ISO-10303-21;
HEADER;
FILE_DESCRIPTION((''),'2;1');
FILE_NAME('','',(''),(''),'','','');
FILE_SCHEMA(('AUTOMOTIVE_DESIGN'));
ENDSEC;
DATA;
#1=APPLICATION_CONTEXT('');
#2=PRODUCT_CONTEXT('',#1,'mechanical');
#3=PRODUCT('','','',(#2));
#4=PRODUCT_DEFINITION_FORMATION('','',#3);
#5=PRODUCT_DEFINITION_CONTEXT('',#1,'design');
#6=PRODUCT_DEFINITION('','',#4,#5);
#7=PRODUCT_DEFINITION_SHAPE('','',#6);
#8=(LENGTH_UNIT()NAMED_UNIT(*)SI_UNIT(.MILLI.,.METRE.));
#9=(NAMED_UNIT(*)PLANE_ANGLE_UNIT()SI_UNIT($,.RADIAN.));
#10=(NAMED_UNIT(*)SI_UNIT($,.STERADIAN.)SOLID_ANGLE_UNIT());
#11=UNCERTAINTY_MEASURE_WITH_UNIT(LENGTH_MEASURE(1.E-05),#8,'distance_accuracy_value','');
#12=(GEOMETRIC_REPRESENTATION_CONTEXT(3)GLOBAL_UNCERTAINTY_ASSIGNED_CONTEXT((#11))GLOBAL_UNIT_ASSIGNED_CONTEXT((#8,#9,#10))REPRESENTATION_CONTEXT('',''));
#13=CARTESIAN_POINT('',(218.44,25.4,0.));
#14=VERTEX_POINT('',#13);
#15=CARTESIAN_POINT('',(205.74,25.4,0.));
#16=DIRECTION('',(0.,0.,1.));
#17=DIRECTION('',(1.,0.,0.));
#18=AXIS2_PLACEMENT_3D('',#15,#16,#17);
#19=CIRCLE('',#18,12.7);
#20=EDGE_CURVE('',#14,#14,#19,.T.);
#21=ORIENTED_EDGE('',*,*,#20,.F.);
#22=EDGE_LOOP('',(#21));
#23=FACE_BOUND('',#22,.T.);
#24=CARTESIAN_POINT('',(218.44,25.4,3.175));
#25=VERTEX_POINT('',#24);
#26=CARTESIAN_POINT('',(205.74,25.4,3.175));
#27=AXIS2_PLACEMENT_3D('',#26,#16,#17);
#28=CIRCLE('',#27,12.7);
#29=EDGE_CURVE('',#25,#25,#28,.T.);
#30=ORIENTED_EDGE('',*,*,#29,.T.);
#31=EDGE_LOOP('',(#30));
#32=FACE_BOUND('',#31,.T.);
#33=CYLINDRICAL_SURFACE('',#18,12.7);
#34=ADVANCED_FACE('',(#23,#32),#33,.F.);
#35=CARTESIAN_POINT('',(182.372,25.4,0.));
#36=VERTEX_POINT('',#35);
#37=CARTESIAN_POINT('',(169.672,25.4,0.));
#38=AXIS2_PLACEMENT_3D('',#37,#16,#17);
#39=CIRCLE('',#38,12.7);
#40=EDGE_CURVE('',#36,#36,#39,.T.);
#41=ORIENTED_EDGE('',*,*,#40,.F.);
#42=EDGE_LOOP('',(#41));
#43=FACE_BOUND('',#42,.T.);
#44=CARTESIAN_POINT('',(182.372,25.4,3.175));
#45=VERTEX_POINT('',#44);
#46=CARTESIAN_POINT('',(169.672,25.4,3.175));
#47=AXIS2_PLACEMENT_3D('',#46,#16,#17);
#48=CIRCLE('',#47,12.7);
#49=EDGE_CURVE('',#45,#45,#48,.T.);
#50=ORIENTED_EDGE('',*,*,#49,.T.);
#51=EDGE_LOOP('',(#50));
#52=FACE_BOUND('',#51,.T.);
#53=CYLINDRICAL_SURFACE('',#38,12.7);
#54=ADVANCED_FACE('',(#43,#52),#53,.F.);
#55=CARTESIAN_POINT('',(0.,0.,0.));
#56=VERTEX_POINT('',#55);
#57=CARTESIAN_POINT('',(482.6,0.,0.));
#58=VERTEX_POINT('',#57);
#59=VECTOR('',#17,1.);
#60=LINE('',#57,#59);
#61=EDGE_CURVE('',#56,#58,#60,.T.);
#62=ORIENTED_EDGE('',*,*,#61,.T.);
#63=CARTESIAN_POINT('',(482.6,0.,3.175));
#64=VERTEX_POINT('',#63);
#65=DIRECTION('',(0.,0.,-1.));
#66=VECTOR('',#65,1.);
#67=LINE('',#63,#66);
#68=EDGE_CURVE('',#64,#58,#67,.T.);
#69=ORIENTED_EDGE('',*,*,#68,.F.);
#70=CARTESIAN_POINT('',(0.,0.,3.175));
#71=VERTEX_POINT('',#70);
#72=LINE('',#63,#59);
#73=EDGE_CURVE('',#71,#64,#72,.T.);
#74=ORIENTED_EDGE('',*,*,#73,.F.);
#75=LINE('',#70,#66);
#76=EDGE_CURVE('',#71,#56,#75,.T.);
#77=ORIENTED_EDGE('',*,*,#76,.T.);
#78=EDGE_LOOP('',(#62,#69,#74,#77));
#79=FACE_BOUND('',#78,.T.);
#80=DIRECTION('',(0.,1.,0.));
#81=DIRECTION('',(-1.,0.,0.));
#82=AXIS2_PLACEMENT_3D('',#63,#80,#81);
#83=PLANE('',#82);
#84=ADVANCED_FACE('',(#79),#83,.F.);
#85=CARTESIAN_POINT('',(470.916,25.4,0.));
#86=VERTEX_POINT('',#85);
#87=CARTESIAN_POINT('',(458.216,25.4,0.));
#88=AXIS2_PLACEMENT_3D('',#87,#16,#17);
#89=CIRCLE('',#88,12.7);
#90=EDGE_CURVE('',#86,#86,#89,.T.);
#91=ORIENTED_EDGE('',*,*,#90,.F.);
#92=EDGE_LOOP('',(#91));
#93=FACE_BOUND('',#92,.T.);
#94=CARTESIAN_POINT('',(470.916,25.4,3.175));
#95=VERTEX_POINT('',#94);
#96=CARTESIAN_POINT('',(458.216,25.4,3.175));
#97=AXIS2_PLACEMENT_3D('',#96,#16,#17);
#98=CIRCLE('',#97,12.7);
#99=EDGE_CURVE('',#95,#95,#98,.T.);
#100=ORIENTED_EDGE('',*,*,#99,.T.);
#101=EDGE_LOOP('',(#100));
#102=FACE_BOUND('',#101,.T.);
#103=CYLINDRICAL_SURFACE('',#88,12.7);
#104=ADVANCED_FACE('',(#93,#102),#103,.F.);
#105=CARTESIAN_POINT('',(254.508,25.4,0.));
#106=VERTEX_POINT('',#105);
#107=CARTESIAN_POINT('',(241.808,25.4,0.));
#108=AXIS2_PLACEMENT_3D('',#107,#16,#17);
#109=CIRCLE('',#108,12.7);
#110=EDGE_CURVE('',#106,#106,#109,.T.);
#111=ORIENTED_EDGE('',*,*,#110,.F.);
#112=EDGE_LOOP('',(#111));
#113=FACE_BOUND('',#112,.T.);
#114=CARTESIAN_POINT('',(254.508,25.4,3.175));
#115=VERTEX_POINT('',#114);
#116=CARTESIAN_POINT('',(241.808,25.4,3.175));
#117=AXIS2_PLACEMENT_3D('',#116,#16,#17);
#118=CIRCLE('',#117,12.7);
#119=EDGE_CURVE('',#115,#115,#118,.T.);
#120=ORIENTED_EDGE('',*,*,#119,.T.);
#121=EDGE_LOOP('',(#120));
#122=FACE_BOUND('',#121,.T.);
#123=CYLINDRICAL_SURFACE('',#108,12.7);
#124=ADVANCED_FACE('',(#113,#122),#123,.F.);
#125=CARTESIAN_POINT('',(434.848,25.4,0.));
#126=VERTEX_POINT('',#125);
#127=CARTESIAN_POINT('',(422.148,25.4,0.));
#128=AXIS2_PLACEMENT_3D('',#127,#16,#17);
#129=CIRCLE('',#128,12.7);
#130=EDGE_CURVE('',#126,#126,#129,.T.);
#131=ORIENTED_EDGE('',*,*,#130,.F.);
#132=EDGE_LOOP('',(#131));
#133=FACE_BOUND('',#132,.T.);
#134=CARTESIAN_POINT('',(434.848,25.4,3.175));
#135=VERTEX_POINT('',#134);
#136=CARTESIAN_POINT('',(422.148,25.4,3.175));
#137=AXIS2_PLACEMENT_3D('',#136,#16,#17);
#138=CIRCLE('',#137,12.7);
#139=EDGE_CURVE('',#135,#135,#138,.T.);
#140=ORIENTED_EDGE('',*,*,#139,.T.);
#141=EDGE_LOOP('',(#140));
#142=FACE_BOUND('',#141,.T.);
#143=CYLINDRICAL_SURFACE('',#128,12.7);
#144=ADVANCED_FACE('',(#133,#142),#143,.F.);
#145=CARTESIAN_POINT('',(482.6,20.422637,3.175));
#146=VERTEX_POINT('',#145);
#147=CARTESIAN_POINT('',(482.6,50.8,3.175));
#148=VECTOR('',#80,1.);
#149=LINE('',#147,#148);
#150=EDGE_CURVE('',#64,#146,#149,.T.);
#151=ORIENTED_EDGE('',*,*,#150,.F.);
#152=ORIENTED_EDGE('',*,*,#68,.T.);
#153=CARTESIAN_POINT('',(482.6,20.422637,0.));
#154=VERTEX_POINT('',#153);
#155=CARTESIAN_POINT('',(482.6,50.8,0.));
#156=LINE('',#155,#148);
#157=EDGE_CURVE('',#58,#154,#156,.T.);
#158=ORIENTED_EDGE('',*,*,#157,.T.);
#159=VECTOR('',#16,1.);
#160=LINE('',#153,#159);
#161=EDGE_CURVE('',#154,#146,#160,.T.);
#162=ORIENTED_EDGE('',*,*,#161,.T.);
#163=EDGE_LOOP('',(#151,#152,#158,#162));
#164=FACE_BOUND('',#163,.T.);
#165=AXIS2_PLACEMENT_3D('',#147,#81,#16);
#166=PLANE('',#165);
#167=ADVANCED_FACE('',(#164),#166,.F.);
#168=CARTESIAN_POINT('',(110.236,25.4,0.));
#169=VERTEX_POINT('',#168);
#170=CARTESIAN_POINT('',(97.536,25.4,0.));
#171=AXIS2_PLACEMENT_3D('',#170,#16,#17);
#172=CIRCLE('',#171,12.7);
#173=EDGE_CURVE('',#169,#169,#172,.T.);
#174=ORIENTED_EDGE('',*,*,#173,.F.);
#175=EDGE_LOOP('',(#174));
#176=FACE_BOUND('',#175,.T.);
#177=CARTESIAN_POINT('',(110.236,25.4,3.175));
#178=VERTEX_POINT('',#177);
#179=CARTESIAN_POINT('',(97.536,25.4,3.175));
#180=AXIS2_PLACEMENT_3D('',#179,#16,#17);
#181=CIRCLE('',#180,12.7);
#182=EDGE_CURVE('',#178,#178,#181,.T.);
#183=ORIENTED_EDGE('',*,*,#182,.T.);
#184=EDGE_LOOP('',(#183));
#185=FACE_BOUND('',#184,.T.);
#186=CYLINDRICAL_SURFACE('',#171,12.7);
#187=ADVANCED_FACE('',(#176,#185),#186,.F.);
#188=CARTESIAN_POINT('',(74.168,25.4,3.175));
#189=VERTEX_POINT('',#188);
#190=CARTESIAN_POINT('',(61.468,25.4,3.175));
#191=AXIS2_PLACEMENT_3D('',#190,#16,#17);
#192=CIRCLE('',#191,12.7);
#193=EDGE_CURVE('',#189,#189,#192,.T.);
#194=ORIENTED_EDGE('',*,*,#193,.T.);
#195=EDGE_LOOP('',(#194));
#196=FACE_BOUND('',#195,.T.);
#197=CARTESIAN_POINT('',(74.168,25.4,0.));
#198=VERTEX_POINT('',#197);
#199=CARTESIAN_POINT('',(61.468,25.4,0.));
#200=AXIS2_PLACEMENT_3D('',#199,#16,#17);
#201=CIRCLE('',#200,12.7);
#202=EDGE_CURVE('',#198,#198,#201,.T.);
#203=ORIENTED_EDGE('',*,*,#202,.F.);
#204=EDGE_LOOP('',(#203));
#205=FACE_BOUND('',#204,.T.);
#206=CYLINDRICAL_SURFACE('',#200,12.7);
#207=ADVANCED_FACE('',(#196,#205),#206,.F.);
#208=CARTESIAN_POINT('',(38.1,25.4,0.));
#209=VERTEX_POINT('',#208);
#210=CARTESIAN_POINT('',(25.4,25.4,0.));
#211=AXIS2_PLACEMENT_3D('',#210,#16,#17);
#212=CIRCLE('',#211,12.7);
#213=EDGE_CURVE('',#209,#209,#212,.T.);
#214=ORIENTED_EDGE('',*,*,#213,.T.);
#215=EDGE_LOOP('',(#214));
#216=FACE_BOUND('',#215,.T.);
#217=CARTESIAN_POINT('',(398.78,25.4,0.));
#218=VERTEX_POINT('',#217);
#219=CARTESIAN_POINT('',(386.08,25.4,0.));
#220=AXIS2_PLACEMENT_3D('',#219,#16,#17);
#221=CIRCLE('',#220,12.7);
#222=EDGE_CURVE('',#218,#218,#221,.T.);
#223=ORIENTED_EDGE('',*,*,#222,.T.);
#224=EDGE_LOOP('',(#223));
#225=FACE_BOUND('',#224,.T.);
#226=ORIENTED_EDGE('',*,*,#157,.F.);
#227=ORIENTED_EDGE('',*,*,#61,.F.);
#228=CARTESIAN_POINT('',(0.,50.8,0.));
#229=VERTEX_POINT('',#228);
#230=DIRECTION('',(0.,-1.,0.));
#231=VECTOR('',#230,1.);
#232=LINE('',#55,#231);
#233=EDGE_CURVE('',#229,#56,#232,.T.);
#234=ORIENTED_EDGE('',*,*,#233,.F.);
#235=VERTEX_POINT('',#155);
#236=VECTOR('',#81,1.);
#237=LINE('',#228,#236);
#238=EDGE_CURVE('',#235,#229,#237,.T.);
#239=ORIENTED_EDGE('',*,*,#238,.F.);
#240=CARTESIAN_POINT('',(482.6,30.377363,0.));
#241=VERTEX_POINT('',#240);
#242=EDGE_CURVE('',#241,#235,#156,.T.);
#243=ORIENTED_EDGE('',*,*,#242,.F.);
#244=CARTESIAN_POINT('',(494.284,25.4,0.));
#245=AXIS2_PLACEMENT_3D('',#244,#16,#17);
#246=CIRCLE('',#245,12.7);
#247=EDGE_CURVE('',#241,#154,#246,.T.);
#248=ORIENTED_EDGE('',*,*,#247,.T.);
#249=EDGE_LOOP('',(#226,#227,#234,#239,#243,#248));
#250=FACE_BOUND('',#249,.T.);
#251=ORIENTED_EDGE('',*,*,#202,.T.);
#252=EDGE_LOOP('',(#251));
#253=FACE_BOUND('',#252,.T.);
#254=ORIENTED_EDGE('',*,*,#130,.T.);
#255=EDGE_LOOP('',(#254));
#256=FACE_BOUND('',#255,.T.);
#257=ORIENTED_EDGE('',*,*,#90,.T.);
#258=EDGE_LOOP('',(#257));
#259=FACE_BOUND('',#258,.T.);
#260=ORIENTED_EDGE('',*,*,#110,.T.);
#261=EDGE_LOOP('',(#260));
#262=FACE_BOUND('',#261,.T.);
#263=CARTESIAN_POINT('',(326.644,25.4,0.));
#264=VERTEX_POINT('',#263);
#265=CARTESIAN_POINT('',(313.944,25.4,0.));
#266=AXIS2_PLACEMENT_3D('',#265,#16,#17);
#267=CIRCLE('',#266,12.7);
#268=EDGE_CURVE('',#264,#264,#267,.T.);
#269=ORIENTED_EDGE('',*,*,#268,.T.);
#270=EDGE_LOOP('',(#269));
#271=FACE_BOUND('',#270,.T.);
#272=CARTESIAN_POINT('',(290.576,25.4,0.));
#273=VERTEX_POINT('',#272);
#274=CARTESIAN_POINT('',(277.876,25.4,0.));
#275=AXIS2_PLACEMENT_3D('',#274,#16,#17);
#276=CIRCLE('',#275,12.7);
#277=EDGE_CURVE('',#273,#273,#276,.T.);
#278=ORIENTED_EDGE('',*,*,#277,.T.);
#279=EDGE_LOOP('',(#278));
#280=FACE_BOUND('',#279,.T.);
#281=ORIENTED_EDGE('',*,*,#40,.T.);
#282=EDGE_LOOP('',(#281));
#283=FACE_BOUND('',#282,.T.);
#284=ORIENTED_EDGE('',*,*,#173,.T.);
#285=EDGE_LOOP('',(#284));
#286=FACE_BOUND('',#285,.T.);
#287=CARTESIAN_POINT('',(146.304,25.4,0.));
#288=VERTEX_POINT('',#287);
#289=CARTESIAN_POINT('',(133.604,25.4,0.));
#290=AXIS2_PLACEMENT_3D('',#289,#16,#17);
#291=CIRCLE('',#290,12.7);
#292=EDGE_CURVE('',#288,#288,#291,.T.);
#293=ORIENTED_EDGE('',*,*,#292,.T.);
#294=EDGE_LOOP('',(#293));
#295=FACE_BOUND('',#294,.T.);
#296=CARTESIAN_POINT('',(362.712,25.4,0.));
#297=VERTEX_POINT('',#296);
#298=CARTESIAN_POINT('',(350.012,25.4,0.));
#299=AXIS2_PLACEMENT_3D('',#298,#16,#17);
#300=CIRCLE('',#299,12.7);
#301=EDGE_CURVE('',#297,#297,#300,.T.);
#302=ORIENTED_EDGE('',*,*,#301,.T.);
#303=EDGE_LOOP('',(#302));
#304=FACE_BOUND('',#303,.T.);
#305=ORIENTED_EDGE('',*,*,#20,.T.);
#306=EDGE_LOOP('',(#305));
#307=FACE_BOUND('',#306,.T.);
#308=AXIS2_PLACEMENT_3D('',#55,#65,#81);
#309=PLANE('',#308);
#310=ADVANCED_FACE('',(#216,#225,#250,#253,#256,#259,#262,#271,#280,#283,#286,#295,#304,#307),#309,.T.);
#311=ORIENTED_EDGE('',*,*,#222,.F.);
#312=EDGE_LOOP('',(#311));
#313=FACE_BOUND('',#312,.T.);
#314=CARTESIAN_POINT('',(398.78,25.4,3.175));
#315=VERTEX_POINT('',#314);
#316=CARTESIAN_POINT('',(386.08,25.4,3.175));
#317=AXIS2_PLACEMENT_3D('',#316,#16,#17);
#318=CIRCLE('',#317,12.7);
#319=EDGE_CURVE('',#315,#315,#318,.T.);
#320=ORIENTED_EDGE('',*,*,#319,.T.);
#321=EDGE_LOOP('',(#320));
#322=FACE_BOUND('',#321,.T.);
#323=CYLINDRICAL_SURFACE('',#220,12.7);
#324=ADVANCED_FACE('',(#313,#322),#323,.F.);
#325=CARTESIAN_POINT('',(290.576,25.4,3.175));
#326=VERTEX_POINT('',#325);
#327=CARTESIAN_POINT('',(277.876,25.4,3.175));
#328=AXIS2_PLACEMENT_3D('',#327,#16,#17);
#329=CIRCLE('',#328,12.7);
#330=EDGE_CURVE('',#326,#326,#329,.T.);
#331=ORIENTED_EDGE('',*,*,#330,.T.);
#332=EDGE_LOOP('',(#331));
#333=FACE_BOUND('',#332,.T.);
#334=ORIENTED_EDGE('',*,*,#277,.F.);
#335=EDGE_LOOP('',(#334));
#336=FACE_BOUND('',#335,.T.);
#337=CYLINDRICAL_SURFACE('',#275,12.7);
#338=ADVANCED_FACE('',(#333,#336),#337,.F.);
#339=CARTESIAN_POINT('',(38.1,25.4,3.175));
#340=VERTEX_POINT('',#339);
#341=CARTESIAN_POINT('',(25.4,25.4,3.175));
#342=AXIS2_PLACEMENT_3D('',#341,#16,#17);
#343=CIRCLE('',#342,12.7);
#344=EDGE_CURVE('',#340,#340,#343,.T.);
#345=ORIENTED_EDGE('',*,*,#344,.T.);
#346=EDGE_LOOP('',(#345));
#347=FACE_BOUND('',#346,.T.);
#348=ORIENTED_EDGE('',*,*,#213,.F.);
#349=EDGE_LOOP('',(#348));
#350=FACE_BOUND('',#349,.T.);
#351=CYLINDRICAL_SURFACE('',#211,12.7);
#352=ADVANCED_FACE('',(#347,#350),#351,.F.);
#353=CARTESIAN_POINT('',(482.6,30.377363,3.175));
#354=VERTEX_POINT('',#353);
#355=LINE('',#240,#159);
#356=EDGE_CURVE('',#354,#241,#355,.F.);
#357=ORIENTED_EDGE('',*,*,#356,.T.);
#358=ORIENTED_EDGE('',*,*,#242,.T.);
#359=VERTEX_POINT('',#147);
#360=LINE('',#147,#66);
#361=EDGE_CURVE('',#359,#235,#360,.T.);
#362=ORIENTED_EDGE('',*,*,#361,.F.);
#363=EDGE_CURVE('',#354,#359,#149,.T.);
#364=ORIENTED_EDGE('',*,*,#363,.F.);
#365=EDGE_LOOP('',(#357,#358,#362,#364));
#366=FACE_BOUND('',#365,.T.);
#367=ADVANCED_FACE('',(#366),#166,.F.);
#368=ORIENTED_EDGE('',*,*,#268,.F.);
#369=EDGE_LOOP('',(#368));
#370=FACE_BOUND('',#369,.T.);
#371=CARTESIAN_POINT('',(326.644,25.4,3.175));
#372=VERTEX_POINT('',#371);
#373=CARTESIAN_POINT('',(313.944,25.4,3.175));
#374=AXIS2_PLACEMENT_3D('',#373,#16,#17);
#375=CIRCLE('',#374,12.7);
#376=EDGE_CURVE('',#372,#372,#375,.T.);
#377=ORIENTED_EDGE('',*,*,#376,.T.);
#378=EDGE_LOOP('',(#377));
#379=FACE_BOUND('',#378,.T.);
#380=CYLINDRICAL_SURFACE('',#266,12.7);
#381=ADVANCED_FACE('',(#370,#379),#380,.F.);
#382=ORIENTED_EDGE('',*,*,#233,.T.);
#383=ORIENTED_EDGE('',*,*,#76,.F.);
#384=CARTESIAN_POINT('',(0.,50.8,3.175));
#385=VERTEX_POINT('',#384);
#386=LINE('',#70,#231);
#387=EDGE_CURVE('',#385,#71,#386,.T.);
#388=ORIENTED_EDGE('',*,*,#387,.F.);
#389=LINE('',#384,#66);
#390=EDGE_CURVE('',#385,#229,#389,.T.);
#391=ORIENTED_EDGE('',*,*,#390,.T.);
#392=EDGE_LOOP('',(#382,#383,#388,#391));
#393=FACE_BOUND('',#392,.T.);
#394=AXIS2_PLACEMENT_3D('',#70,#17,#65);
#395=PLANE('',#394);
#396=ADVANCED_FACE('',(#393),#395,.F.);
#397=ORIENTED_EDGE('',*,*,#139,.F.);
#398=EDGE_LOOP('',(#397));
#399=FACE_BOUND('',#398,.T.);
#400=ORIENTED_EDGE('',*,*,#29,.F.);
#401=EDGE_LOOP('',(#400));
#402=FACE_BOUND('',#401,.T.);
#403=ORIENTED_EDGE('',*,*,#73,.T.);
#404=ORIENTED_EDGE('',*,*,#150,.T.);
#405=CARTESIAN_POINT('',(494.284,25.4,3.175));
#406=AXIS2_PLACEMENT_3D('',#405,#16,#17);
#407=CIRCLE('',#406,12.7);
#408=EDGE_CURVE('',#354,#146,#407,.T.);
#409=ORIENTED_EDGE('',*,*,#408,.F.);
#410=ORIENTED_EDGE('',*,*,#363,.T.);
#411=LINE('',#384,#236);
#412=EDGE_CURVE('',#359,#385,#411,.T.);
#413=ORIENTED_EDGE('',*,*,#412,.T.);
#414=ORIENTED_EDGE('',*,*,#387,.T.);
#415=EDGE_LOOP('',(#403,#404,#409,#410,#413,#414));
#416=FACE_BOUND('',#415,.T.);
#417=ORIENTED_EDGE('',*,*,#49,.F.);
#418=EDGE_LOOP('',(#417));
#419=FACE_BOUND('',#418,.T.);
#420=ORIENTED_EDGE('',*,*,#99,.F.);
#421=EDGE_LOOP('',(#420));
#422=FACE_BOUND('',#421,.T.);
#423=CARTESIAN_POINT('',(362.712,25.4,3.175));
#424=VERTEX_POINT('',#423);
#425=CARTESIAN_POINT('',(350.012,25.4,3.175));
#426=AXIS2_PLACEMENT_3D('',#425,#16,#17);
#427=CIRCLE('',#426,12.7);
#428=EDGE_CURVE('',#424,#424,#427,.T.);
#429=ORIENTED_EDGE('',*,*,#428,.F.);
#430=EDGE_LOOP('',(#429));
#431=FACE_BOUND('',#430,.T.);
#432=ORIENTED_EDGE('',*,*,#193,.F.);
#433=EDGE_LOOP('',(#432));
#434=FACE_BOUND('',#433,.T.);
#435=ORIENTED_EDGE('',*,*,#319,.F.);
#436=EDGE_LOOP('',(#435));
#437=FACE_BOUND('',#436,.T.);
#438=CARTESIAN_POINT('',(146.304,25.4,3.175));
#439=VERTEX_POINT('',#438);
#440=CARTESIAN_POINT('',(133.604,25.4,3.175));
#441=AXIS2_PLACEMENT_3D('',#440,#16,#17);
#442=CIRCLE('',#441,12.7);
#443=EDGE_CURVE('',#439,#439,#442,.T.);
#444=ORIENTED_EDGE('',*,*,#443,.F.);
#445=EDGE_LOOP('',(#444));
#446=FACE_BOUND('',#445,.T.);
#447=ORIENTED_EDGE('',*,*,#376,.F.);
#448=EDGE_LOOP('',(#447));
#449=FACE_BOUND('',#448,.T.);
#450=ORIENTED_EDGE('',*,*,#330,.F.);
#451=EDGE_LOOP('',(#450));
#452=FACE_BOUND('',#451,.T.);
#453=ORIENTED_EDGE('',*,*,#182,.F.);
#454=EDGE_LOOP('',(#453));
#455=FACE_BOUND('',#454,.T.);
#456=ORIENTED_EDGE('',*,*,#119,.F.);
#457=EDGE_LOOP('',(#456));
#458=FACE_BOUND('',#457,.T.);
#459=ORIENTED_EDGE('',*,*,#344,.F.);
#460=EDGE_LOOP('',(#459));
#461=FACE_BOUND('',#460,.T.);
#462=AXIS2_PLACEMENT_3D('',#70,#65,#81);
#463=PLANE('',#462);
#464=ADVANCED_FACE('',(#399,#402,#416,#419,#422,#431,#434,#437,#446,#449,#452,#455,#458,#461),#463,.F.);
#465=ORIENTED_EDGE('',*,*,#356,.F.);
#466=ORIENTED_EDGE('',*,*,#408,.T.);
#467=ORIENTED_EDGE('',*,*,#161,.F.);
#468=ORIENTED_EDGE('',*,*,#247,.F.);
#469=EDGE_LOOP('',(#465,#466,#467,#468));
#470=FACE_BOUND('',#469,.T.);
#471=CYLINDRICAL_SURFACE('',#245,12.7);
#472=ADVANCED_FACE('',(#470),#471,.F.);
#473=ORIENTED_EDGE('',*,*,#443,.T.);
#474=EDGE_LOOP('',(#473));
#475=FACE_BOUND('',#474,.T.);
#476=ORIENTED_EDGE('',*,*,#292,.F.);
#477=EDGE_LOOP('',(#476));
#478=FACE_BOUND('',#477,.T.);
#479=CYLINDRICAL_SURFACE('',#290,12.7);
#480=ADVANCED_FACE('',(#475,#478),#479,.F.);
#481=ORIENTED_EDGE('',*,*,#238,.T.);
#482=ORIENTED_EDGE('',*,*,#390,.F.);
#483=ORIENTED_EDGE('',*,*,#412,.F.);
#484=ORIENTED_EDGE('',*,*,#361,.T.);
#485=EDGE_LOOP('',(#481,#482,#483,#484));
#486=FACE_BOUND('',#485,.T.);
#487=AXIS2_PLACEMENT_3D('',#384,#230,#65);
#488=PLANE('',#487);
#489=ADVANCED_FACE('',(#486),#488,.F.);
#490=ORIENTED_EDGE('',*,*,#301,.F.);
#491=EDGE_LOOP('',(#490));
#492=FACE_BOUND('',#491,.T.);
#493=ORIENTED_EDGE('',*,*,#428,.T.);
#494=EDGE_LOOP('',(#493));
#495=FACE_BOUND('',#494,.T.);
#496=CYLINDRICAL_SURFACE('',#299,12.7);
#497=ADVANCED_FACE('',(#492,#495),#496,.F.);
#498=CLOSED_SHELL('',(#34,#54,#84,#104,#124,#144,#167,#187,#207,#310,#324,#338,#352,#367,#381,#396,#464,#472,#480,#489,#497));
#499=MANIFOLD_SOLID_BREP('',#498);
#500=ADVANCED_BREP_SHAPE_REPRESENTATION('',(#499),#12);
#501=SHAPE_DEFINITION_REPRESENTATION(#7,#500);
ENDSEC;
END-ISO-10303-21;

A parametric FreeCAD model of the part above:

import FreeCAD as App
import Part
import Sketcher

V = App.Vector
Q = App.Units.Quantity


def add_polygon(sketch, points):
    """Adds a closed chain of lines whose ends are joined by coincident constraints."""
    first, n = sketch.GeometryCount, len(points)
    for a, b in zip(points, points[1:] + points[:1]):
        sketch.addGeometry(Part.LineSegment(App.Vector(*a, 0), App.Vector(*b, 0)), False)
    for i in range(n):
        sketch.addConstraint(Sketcher.Constraint("Coincident", first + i, 2, first + (i + 1) % n, 1))

doc = App.newDocument("Part")
params = doc.addObject("Spreadsheet::Sheet", "Params")
for row, (alias, value) in enumerate([
    ("sketch1_width", "19 in"),
    ("sketch1_height", "2 in"),
    ("pad1_length", "0.125 in"),
    ("sketch2_diameter", "1 in"),
    ("linearpattern_pitch", "1.42 in"),
], start=1):
    params.set(f"A{row}", alias)
    params.set(f"B{row}", "=" + value)
    params.setAlias(f"B{row}", alias)

body = doc.addObject("PartDesign::Body", "Body")

# Sketch on XY plane
sketch1 = doc.addObject("Sketcher::SketchObject", "Sketch")
body.addObject(sketch1)
sketch1.AttachmentSupport = (doc.XY_Plane, [""])
sketch1.MapMode = "FlatFace"
add_polygon(sketch1, [(0, 50.8), (0, 0), (482.6, 0), (482.6, 50.8)])  # lines 0-3
sketch1.addConstraint(Sketcher.Constraint("Vertical", 0))
sketch1.addConstraint(Sketcher.Constraint("Horizontal", 1))
sketch1.addConstraint(Sketcher.Constraint("Vertical", 2))
sketch1.addConstraint(Sketcher.Constraint("Horizontal", 3))
sketch1.addConstraint(Sketcher.Constraint("Coincident", 0, 2, -1, 1))
sketch1.addConstraint(Sketcher.Constraint("DistanceX", 1, 1, 1, 2, Q("19 in")))
sketch1.addConstraint(Sketcher.Constraint("DistanceY", 0, 2, 0, 1, Q("2 in")))
sketch1.setExpression("Constraints[9]", "Params.sketch1_width")
sketch1.setExpression("Constraints[10]", "Params.sketch1_height")
pad1 = doc.addObject("PartDesign::Pad", "Pad")
body.addObject(pad1)
pad1.Profile = sketch1
pad1.setExpression("Length", "Params.pad1_length")

# Sketch on XY plane
sketch2 = doc.addObject("Sketcher::SketchObject", "Sketch001")
body.addObject(sketch2)
sketch2.AttachmentSupport = (doc.XY_Plane, [""])
sketch2.MapMode = "FlatFace"
sketch2.AttachmentOffset = App.Placement(V(0, 0, 0.125 * 25.4), App.Rotation())
sketch2.addGeometry(Part.Circle(V(25.4, 25.4, 0), V(0, 0, 1), 12.7), False)
sketch2.addConstraint(Sketcher.Constraint("Diameter", 0, Q("1 in")))
sketch2.addConstraint(Sketcher.Constraint("DistanceX", -1, 1, 0, 3, Q("1 in")))
sketch2.addConstraint(Sketcher.Constraint("DistanceY", -1, 1, 0, 3, Q("1 in")))
sketch2.setExpression("Constraints[0]", "Params.sketch2_diameter")
pocket1 = doc.addObject("PartDesign::Pocket", "Pocket")
body.addObject(pocket1)
pocket1.Profile = sketch2
pocket1.Type = "ThroughAll"
doc.recompute()

linearpattern = doc.addObject("PartDesign::LinearPattern", "LinearPattern")
body.addObject(linearpattern)
linearpattern.Originals = [pocket1]
linearpattern.Direction = (doc.X_Axis, [""])
linearpattern.Mode = "offset"
linearpattern.setExpression("Offset", "Params.linearpattern_pitch")
linearpattern.Occurrences = 15
body.Tip = linearpattern

doc.recompute()
